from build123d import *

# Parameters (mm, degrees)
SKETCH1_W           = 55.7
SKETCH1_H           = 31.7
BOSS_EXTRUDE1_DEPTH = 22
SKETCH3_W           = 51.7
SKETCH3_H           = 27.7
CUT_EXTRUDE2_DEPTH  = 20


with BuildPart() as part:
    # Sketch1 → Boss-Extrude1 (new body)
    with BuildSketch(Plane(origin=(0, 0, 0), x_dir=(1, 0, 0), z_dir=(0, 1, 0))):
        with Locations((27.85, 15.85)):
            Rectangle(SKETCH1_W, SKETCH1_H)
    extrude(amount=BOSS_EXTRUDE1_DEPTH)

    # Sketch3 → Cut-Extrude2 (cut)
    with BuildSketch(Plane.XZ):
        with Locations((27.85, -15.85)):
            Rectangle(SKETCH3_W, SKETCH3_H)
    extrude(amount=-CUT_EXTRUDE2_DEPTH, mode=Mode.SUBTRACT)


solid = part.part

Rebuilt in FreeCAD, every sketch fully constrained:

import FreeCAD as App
import Part
import Sketcher
from FreeCAD import Vector

doc = App.newDocument("Part")
body = doc.addObject("PartDesign::Body", "Body")

# Sketch on XZ plane
sketch1 = doc.addObject("Sketcher::SketchObject", "Sketch")
body.addObject(sketch1)
sketch1.AttachmentSupport = (doc.XZ_Plane, [""])
sketch1.MapMode = "FlatFace"
sketch1.addGeometry([
    Part.LineSegment(Vector(0, -32, 0), Vector(0, 0, 0)),
    Part.LineSegment(Vector(0, 0, 0), Vector(56, 0, 0)),
    Part.LineSegment(Vector(56, 0, 0), Vector(56, -32, 0)),
    Part.LineSegment(Vector(56, -32, 0), Vector(0, -32, 0)),
], False)
sketch1.addConstraint([
    Sketcher.Constraint("Coincident", 0, 2, 1, 1),
    Sketcher.Constraint("Coincident", 1, 2, 2, 1),
    Sketcher.Constraint("Coincident", 2, 2, 3, 1),
    Sketcher.Constraint("Coincident", 3, 2, 0, 1),
    Sketcher.Constraint("Vertical", 0),
    Sketcher.Constraint("Horizontal", 1),
    Sketcher.Constraint("Vertical", 2),
    Sketcher.Constraint("Horizontal", 3),
    Sketcher.Constraint("Coincident", 0, 2, -1, 1),
    Sketcher.Constraint("DistanceX", 1, 1, 1, 2, 55.7),
    Sketcher.Constraint("DistanceY", 0, 1, 0, 2, 31.7),
])
pad1 = doc.addObject("PartDesign::Pad", "Pad")
body.addObject(pad1)
pad1.Profile = sketch1
pad1.Length = 22
pad1.Reversed = True

# Sketch on XZ plane
sketch2 = doc.addObject("Sketcher::SketchObject", "Sketch001")
body.addObject(sketch2)
sketch2.AttachmentSupport = (doc.XZ_Plane, [""])
sketch2.MapMode = "FlatFace"
sketch2.addGeometry([
    Part.LineSegment(Vector(2, -2, 0), Vector(2, -30, 0)),
    Part.LineSegment(Vector(2, -30, 0), Vector(54, -30, 0)),
    Part.LineSegment(Vector(54, -30, 0), Vector(54, -2, 0)),
    Part.LineSegment(Vector(54, -2, 0), Vector(2, -2, 0)),
], False)
sketch2.addConstraint([
    Sketcher.Constraint("Coincident", 0, 2, 1, 1),
    Sketcher.Constraint("Coincident", 1, 2, 2, 1),
    Sketcher.Constraint("Coincident", 2, 2, 3, 1),
    Sketcher.Constraint("Coincident", 3, 2, 0, 1),
    Sketcher.Constraint("Vertical", 0),
    Sketcher.Constraint("Horizontal", 1),
    Sketcher.Constraint("Vertical", 2),
    Sketcher.Constraint("Horizontal", 3),
    Sketcher.Constraint("DistanceX", 1, 1, 1, 2, 51.7),
    Sketcher.Constraint("DistanceY", 0, 2, 0, 1, 27.7),
    Sketcher.Constraint("DistanceX", -1, 1, 0, 2, 2.0),
    Sketcher.Constraint("DistanceY", 2, 2, -1, 1, 2.0),
])
pocket1 = doc.addObject("PartDesign::Pocket", "Pocket")
body.addObject(pocket1)
pocket1.Profile = sketch2
pocket1.Length = 20

doc.recompute()
